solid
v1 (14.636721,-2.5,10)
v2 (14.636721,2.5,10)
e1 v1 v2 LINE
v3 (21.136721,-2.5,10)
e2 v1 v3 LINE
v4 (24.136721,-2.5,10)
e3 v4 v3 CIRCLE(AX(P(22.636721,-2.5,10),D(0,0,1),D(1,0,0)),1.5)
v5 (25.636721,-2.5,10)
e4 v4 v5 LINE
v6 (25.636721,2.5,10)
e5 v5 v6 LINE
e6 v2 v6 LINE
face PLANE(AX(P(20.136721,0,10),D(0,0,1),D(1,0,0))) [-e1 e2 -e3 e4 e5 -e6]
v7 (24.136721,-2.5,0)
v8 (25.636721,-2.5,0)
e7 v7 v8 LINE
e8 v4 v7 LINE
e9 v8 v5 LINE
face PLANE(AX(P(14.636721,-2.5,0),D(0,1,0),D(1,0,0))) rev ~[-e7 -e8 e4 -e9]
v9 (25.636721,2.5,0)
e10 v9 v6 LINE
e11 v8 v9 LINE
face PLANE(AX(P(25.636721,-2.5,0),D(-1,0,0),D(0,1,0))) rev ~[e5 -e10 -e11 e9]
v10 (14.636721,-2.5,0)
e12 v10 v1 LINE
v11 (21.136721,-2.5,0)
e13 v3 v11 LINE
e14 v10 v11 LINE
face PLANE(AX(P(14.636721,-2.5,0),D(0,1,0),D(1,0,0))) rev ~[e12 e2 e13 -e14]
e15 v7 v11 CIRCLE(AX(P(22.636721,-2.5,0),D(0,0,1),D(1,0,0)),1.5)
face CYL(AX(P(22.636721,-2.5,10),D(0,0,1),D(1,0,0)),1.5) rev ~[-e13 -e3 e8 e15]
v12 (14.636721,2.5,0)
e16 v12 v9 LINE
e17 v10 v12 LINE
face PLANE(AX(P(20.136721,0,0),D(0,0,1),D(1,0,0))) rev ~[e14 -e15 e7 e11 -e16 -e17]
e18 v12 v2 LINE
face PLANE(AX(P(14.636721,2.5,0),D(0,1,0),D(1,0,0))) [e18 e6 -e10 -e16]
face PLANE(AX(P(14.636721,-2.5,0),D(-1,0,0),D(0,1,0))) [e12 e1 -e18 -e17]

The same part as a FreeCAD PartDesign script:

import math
import FreeCAD as App
import Part
import Sketcher
Q = App.Units.Quantity


def add_polygon(sketch, points):
    """Adds a closed chain of lines whose ends are joined by coincident constraints."""
    first, n = sketch.GeometryCount, len(points)
    for a, b in zip(points, points[1:] + points[:1]):
        sketch.addGeometry(Part.LineSegment(App.Vector(*a, 0), App.Vector(*b, 0)), False)
    for i in range(n):
        sketch.addConstraint(Sketcher.Constraint("Coincident", first + i, 2, first + (i + 1) % n, 1))

doc = App.newDocument("Part")
params = doc.addObject("Spreadsheet::Sheet", "Params")
for row, (alias, value) in enumerate([
    ("sketch1_width", "11 mm"),
    ("sketch1_height", "5 mm"),
    ("pad1_length", "10 mm"),
    ("sketch2_radius", "1.5 mm"),
], start=1):
    params.set(f"A{row}", alias)
    params.set(f"B{row}", "=" + value)
    params.setAlias(f"B{row}", alias)

body = doc.addObject("PartDesign::Body", "Body")

# Sketch on XY plane
sketch1 = body.newObject("Sketcher::SketchObject", "Sketch")
sketch1.AttachmentSupport = (doc.getObject("XY_Plane"), [""])
sketch1.MapMode = "FlatFace"
add_polygon(sketch1, [(15, 2), (15, -2), (26, -2), (26, 2)])  # lines 0-3
sketch1.addConstraint(Sketcher.Constraint("Vertical", 0))
sketch1.addConstraint(Sketcher.Constraint("Horizontal", 1))
sketch1.addConstraint(Sketcher.Constraint("Vertical", 2))
sketch1.addConstraint(Sketcher.Constraint("Horizontal", 3))
sketch1.addConstraint(Sketcher.Constraint("DistanceX", 1, 1, 1, 2, Q("11 mm")))
sketch1.addConstraint(Sketcher.Constraint("DistanceY", 0, 2, 0, 1, Q("5 mm")))
sketch1.addConstraint(Sketcher.Constraint("DistanceY", 0, 2, -1, 1, Q("2.5 mm")))
sketch1.addConstraint(Sketcher.Constraint("DistanceX", -1, 1, 0, 2, Q("14.636721 mm")))
sketch1.setExpression("Constraints[8]", "Params.sketch1_width")
sketch1.setExpression("Constraints[9]", "Params.sketch1_height")
pad1 = body.newObject("PartDesign::Pad", "Pad")
pad1.Profile = sketch1
pad1.setExpression("Length", "Params.pad1_length")

# Sketch on XY plane
sketch2 = body.newObject("Sketcher::SketchObject", "Sketch001")
sketch2.AttachmentSupport = (doc.getObject("XY_Plane"), [""])
sketch2.MapMode = "FlatFace"
sketch2.AttachmentOffset = App.Placement(App.Vector(0, 0, 10), App.Rotation())
sketch2.addGeometry(Part.LineSegment(App.Vector(21.1, -2.5, 0), App.Vector(24.1, -2.5, 0)), False)
sketch2.addGeometry(Part.ArcOfCircle(Part.Circle(App.Vector(22.6, -2.5, 0), App.Vector(0, 0, 1), 1.5), math.radians(0), math.radians(180)), False)
sketch2.addConstraint(Sketcher.Constraint("Coincident", 0, 1, 1, 2))
sketch2.addConstraint(Sketcher.Constraint("Coincident", 1, 1, 0, 2))
sketch2.addConstraint(Sketcher.Constraint("Horizontal", 0))
sketch2.addConstraint(Sketcher.Constraint("Horizontal", 1, 3, 0, 1))
sketch2.addConstraint(Sketcher.Constraint("Radius", 1, Q("1.5 mm")))
sketch2.addConstraint(Sketcher.Constraint("DistanceY", 1, 3, -1, 1, Q("2.5 mm")))
sketch2.addConstraint(Sketcher.Constraint("DistanceX", -1, 1, 1, 3, Q("22.636721 mm")))
sketch2.setExpression("Constraints[4]", "Params.sketch2_radius")
pocket1 = body.newObject("PartDesign::Pocket", "Pocket")
pocket1.Profile = sketch2
pocket1.Type = "ThroughAll"

doc.recompute()
